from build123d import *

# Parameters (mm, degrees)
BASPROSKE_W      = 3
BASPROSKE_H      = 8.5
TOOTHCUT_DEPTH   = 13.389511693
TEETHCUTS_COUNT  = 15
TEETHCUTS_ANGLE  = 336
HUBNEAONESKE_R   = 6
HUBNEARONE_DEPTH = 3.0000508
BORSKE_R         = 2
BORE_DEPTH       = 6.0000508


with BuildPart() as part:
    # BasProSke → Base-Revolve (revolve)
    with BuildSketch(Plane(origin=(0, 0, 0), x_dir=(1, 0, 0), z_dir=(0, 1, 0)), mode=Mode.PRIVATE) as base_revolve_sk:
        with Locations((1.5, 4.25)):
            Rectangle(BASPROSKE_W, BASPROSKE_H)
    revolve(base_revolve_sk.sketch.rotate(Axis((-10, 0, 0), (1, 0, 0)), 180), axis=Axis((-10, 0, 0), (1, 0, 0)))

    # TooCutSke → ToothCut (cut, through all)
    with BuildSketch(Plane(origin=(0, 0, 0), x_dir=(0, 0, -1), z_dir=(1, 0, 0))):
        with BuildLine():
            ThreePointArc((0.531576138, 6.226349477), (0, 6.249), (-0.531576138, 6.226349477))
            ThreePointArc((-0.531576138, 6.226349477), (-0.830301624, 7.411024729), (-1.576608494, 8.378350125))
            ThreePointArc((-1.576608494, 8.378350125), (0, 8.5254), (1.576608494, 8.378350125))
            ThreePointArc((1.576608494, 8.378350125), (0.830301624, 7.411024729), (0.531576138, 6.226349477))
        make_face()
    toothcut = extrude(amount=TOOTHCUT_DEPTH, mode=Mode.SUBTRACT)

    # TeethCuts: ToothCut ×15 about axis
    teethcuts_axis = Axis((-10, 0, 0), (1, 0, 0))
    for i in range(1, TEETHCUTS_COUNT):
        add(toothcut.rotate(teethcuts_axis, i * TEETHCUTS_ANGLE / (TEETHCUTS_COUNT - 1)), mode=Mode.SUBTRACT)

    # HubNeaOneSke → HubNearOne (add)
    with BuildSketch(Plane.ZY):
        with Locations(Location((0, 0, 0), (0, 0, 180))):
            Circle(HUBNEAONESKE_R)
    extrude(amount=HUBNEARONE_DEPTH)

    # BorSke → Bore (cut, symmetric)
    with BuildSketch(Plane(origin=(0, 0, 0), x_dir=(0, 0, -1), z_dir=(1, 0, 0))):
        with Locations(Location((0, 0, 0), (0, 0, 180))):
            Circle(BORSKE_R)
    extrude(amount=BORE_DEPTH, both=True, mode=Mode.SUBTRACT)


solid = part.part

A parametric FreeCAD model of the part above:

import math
import FreeCAD as App
import Part
import Sketcher

V = App.Vector
Q = App.Units.Quantity

doc = App.newDocument("Part")
body = doc.addObject("PartDesign::Body", "Body")

# Sketch on XZ plane
sketch1 = body.newObject("Sketcher::SketchObject", "Sketch")
sketch1.AttachmentSupport = (doc.getObject("XZ_Plane"), [""])
sketch1.MapMode = "FlatFace"
sketch1.addGeometry([
    Part.LineSegment(V(0, -8.5, 0), V(0, 0, 0)),
    Part.LineSegment(V(0, 0, 0), V(3, 0, 0)),
    Part.LineSegment(V(3, 0, 0), V(3, -8.5, 0)),
    Part.LineSegment(V(3, -8.5, 0), V(0, -8.5, 0)),
], False)
sketch1.addConstraint([
    Sketcher.Constraint("Coincident", 0, 2, 1, 1),
    Sketcher.Constraint("Coincident", 1, 2, 2, 1),
    Sketcher.Constraint("Coincident", 2, 2, 3, 1),
    Sketcher.Constraint("Coincident", 3, 2, 0, 1),
    Sketcher.Constraint("Vertical", 0),
    Sketcher.Constraint("Horizontal", 1),
    Sketcher.Constraint("Vertical", 2),
    Sketcher.Constraint("Horizontal", 3),
    Sketcher.Constraint("Coincident", 0, 2, -1, 1),
    Sketcher.Constraint("DistanceX", 1, 1, 1, 2, Q("3 mm")),
    Sketcher.Constraint("DistanceY", 0, 1, 0, 2, Q("8.5 mm")),
])
revolution = body.newObject("PartDesign::Revolution", "Revolution")
revolution.Profile = sketch1
revolution.ReferenceAxis = (sketch1, ["H_Axis"])
revolution.Angle = 360

# Sketch on YZ plane
sketch2 = body.newObject("Sketcher::SketchObject", "Sketch001")
sketch2.AttachmentSupport = (doc.getObject("YZ_Plane"), [""])
sketch2.MapMode = "FlatFace"
sketch2.addGeometry([
    Part.ArcOfCircle(Part.Circle(V(0, 0, 0), V(0, 0, 1), 6.2), math.radians(-4.88), math.radians(4.88)),
    Part.ArcOfCircle(Part.Circle(V(6.1, -3.5, 0), V(0, 0, 1), 3), math.radians(41), math.radians(88)),
    Part.ArcOfCircle(Part.Circle(V(0, 0, 0), V(0, 0, 1), 8.5), math.radians(-11), math.radians(11)),
    Part.ArcOfCircle(Part.Circle(V(6.1, 3.5, 0), V(0, 0, 1), 3), math.radians(-88), math.radians(-41)),
], False)
sketch2.addConstraint([
    Sketcher.Constraint("Coincident", 0, 1, 1, 2),
    Sketcher.Constraint("Coincident", 1, 1, 2, 1),
    Sketcher.Constraint("Coincident", 2, 2, 3, 2),
    Sketcher.Constraint("Coincident", 3, 1, 0, 2),
    Sketcher.Constraint("Coincident", 0, 3, -1, 1),
    Sketcher.Constraint("Coincident", 2, 3, -1, 1),
    Sketcher.Constraint("Equal", 1, 3),
    Sketcher.Constraint("Symmetric", 1, 3, 3, 3, -1),
    Sketcher.Constraint("Radius", 1, Q("3 mm")),
    Sketcher.Constraint("Radius", 0, Q("6.249 mm")),
    Sketcher.Constraint("Radius", 2, Q("8.5254 mm")),
    Sketcher.Constraint("DistanceX", 0, 1, 1, 1, Q("2.152001 mm")),
    Sketcher.Constraint("DistanceX", -1, 1, 1, 3, Q("6.100541 mm")),
])
pocket1 = body.newObject("PartDesign::Pocket", "Pocket")
pocket1.Profile = sketch2
pocket1.Type = "ThroughAll"
pocket1.Reversed = True
doc.recompute()

polarpattern = body.newObject("PartDesign::PolarPattern", "PolarPattern")
polarpattern.Originals = [pocket1]
polarpattern.Axis = (doc.getObject("X_Axis"), [""])
polarpattern.Angle = 360
polarpattern.Occurrences = 15
body.Tip = polarpattern

# Sketch on YZ plane
sketch3 = body.newObject("Sketcher::SketchObject", "Sketch002")
sketch3.AttachmentSupport = (doc.getObject("YZ_Plane"), [""])
sketch3.MapMode = "FlatFace"
sketch3.addGeometry(Part.Circle(V(0, 0, 0), V(0, 0, 1), 6), False)
sketch3.addConstraint([
    Sketcher.Constraint("Coincident", 0, 3, -1, 1),
    Sketcher.Constraint("Diameter", 0, Q("12 mm")),
])
pad1 = body.newObject("PartDesign::Pad", "Pad")
pad1.Profile = sketch3
pad1.Length = 3.000051
pad1.Reversed = True

# Sketch on YZ plane
sketch4 = body.newObject("Sketcher::SketchObject", "Sketch003")
sketch4.AttachmentSupport = (doc.getObject("YZ_Plane"), [""])
sketch4.MapMode = "FlatFace"
sketch4.addGeometry(Part.Circle(V(0, 0, 0), V(0, 0, 1), 2), False)
sketch4.addConstraint([
    Sketcher.Constraint("Coincident", 0, 3, -1, 1),
    Sketcher.Constraint("Diameter", 0, Q("4 mm")),
])
pocket2 = body.newObject("PartDesign::Pocket", "Pocket001")
pocket2.Profile = sketch4
pocket2.Length = 12.000102
pocket2.Midplane = True

doc.recompute()
